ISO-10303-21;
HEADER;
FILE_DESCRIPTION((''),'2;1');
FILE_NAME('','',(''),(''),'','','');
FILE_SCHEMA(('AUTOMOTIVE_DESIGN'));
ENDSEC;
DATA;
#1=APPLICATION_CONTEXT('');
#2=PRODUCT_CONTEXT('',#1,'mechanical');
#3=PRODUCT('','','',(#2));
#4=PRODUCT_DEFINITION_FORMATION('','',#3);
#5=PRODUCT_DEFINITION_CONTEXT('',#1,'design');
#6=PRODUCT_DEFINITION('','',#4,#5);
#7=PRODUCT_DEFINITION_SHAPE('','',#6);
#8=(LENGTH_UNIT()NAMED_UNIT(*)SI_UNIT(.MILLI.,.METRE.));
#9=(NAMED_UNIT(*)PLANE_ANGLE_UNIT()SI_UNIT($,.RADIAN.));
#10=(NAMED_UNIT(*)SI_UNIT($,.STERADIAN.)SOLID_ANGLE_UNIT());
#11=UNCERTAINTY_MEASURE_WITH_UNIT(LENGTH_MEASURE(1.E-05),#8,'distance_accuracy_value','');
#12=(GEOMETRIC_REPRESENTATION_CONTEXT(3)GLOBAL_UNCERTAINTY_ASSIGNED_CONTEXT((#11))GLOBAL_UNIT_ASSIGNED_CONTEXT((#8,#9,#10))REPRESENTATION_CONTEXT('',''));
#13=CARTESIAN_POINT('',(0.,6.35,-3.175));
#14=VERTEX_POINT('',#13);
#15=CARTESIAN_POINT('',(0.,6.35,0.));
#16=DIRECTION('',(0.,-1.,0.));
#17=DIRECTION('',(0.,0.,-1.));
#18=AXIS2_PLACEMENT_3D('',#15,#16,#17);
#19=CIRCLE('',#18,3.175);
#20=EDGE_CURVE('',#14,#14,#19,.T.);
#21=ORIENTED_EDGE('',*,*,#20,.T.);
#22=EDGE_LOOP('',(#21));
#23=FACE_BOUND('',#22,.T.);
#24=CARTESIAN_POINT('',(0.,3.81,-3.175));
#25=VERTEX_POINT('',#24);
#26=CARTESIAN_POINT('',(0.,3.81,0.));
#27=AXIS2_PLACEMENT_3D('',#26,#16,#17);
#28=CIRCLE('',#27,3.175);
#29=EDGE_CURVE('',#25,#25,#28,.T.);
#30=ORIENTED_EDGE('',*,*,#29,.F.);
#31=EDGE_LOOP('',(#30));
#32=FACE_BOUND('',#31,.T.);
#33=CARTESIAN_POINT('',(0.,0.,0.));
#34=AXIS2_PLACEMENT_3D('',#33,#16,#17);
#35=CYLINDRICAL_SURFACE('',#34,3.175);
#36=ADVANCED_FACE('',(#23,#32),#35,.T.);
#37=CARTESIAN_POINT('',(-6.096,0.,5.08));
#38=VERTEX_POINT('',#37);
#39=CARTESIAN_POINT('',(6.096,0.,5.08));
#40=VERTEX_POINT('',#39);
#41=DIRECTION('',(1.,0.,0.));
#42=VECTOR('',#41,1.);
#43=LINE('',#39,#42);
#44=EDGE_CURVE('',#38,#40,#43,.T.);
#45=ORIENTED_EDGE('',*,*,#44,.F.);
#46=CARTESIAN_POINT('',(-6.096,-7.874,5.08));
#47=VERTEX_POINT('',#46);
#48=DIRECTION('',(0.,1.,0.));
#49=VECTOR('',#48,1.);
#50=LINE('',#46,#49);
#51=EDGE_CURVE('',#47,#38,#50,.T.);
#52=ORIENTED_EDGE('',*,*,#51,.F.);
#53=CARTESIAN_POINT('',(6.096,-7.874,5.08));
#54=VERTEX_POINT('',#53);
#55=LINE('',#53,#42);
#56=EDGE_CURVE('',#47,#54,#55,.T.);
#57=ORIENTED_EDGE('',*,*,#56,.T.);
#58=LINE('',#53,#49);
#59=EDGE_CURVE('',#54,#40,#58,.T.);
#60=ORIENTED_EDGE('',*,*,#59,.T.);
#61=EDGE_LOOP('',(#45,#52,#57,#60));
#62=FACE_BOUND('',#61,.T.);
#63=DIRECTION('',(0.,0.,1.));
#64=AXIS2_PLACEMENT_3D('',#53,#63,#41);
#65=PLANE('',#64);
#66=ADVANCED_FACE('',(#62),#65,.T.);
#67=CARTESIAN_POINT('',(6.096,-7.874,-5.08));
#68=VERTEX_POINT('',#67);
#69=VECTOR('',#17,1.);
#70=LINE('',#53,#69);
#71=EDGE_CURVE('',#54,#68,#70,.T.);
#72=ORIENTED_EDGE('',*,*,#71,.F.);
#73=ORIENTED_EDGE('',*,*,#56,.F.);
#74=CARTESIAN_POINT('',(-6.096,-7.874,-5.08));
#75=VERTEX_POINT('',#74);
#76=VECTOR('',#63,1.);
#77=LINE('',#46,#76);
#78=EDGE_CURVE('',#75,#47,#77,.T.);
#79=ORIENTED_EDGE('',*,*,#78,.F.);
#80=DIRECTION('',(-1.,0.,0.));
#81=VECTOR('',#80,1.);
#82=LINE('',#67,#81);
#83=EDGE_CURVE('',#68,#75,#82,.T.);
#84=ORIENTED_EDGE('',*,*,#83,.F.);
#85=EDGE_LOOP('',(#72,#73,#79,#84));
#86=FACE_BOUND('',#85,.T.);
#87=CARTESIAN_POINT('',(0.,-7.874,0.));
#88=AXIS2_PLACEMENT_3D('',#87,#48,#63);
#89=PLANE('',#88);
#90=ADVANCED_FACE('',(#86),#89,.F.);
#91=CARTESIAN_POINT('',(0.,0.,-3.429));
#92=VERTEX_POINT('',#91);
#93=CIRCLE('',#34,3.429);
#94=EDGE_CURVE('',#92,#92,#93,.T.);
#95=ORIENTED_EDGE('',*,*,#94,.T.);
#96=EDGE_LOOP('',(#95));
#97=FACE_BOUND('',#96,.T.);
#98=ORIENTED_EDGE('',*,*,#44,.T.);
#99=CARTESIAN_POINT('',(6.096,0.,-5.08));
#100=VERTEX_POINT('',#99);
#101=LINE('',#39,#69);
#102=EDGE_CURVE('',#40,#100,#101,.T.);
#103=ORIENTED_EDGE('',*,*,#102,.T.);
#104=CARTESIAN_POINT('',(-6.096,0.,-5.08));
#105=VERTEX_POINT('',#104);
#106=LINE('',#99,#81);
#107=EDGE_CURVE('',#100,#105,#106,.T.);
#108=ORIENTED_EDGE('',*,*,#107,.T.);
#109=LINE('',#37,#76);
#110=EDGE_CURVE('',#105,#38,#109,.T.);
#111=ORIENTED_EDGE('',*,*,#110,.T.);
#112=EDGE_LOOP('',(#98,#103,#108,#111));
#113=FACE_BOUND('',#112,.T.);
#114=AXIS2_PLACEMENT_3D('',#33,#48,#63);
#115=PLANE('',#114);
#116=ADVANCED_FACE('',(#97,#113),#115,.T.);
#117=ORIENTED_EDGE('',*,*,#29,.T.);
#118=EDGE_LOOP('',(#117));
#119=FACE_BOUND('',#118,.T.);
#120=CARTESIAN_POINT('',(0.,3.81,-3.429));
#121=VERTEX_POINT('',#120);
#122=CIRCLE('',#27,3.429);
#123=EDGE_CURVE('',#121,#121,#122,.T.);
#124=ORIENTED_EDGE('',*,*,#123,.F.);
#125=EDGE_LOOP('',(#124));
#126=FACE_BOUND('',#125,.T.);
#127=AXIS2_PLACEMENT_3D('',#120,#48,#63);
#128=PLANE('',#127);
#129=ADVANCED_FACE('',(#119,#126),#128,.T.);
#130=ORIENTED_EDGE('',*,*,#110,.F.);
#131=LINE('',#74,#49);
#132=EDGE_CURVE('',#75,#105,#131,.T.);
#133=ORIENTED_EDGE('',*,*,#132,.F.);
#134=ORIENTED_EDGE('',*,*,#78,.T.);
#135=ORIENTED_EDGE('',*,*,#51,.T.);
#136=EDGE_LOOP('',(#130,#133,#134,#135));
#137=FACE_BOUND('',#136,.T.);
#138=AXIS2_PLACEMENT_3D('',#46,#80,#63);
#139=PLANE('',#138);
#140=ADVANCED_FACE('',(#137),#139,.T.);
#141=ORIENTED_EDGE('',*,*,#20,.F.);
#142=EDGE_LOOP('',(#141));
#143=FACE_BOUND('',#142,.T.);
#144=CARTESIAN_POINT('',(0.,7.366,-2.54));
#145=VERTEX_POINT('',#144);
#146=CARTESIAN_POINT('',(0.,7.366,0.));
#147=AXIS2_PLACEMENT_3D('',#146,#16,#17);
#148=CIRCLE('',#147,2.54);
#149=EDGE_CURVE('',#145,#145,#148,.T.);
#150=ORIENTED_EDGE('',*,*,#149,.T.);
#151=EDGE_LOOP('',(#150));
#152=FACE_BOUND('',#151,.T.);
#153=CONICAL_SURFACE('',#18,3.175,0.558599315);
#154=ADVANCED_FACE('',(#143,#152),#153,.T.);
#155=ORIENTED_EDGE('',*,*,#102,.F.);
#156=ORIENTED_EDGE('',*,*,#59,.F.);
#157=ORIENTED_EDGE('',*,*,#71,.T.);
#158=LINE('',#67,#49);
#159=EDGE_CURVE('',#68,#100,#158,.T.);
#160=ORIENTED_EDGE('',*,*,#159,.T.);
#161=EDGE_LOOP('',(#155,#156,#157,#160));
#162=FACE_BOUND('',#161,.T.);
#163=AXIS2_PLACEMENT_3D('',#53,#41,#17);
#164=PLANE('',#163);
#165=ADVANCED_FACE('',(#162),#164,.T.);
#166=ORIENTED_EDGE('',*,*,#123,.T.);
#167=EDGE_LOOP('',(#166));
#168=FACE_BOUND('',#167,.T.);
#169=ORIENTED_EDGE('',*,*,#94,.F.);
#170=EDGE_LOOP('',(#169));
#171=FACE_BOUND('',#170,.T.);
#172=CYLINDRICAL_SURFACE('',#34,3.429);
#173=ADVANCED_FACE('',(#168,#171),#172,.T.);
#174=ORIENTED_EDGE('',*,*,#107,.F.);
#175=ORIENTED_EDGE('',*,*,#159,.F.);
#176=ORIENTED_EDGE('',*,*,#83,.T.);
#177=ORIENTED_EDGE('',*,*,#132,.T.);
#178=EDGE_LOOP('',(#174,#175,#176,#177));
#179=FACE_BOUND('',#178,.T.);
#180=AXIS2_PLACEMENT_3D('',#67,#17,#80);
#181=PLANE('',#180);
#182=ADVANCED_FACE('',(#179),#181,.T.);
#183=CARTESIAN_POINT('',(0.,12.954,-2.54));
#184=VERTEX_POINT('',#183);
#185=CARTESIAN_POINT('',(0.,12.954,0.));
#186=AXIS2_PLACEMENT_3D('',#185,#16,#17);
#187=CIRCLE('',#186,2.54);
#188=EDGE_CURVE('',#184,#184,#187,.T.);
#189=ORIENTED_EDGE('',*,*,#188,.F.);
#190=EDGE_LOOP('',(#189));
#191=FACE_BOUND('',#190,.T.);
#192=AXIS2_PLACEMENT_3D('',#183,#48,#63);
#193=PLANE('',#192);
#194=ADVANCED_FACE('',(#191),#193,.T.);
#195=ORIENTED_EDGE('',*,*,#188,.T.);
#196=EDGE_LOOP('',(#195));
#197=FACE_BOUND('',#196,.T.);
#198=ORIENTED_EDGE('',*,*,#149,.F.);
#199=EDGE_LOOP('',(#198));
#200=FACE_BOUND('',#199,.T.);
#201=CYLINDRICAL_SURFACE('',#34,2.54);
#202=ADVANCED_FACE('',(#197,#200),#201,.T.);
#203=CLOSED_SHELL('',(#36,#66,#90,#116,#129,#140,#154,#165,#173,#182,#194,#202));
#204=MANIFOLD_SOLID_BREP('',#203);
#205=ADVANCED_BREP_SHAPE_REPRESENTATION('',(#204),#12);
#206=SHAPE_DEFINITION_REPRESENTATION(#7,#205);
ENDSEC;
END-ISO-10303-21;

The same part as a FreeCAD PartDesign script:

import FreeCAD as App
import Part
import Sketcher

V = App.Vector
Q = App.Units.Quantity

doc = App.newDocument("Part")
params = doc.addObject("Spreadsheet::Sheet", "Params")
for row, (alias, value) in enumerate([
    ("sketch1_height", "0.4 in"),
    ("sketch1_width", "0.48 in"),
    ("pad1_length", "0.31 in"),
    ("sketch2_width", "0.1 in"),
    ("sketch2_width2", "0.15 in"),
    ("sketch2_width3", "0.22 in"),
    ("sketch2_width4", "0.51 in"),
    ("sketch2_height", "0.01 in"),
    ("revolution_angle", "360 deg"),
], start=1):
    params.set(f"A{row}", alias)
    params.set(f"B{row}", "=" + value)
    params.setAlias(f"B{row}", alias)

body = doc.addObject("PartDesign::Body", "Body")

# Sketch on XZ plane
sketch1 = body.newObject("Sketcher::SketchObject", "Sketch")
sketch1.AttachmentSupport = (doc.getObject("XZ_Plane"), [""])
sketch1.MapMode = "FlatFace"
sketch1.addGeometry(Part.LineSegment(V(-6.096, -5.08, 0), V(-6.096, 5.08, 0)), False)
sketch1.addGeometry(Part.LineSegment(V(-6.096, 5.08, 0), V(6.096, 5.08, 0)), False)
sketch1.addGeometry(Part.LineSegment(V(6.096, 5.08, 0), V(6.096, -5.08, 0)), False)
sketch1.addGeometry(Part.LineSegment(V(6.096, -5.08, 0), V(-6.096, -5.08, 0)), False)
sketch1.addConstraint(Sketcher.Constraint("Coincident", 0, 2, 1, 1))
sketch1.addConstraint(Sketcher.Constraint("Coincident", 1, 2, 2, 1))
sketch1.addConstraint(Sketcher.Constraint("Coincident", 2, 2, 3, 1))
sketch1.addConstraint(Sketcher.Constraint("Coincident", 3, 2, 0, 1))
sketch1.addConstraint(Sketcher.Constraint("Vertical", 0))
sketch1.addConstraint(Sketcher.Constraint("Horizontal", 1))
sketch1.addConstraint(Sketcher.Constraint("Vertical", 2))
sketch1.addConstraint(Sketcher.Constraint("Horizontal", 3))
sketch1.addConstraint(Sketcher.Constraint("Symmetric", 0, 2, 2, 2, -1, 1))
sketch1.addConstraint(Sketcher.Constraint("DistanceY", 0, 1, 0, 2, Q("0.4 in")))
sketch1.addConstraint(Sketcher.Constraint("DistanceX", 1, 1, 1, 2, Q("0.48 in")))
sketch1.setExpression("Constraints[9]", "Params.sketch1_height")
sketch1.setExpression("Constraints[10]", "Params.sketch1_width")
pad1 = body.newObject("PartDesign::Pad", "Pad")
pad1.Profile = sketch1
pad1.setExpression("Length", "Params.pad1_length")

# Sketch on YZ plane
sketch2 = body.newObject("Sketcher::SketchObject", "Sketch001")
sketch2.AttachmentSupport = (doc.getObject("YZ_Plane"), [""])
sketch2.MapMode = "FlatFace"
sketch2.addGeometry(Part.LineSegment(V(0, 0, 0), V(0, -3.429, 0)), False)
sketch2.addGeometry(Part.LineSegment(V(0, -3.429, 0), V(3.81, -3.429, 0)), False)
sketch2.addGeometry(Part.LineSegment(V(3.81, -3.429, 0), V(3.81, -3.175, 0)), False)
sketch2.addGeometry(Part.LineSegment(V(3.81, -3.175, 0), V(6.35, -3.175, 0)), False)
sketch2.addGeometry(Part.LineSegment(V(6.35, -3.175, 0), V(7.366, -2.54, 0)), False)
sketch2.addGeometry(Part.LineSegment(V(7.366, -2.54, 0), V(12.954, -2.54, 0)), False)
sketch2.addGeometry(Part.LineSegment(V(12.954, -2.54, 0), V(12.954, 0, 0)), False)
sketch2.addGeometry(Part.LineSegment(V(12.954, 0, 0), V(0, 0, 0)), False)
sketch2.addConstraint(Sketcher.Constraint("Coincident", 0, 2, 1, 1))
sketch2.addConstraint(Sketcher.Constraint("Coincident", 1, 2, 2, 1))
sketch2.addConstraint(Sketcher.Constraint("Coincident", 2, 2, 3, 1))
sketch2.addConstraint(Sketcher.Constraint("Coincident", 3, 2, 4, 1))
sketch2.addConstraint(Sketcher.Constraint("Coincident", 4, 2, 5, 1))
sketch2.addConstraint(Sketcher.Constraint("Coincident", 5, 2, 6, 1))
sketch2.addConstraint(Sketcher.Constraint("Coincident", 6, 2, 7, 1))
sketch2.addConstraint(Sketcher.Constraint("Coincident", 7, 2, 0, 1))
sketch2.addConstraint(Sketcher.Constraint("Vertical", 0))
sketch2.addConstraint(Sketcher.Constraint("Horizontal", 1))
sketch2.addConstraint(Sketcher.Constraint("Vertical", 2))
sketch2.addConstraint(Sketcher.Constraint("Horizontal", 3))
sketch2.addConstraint(Sketcher.Constraint("Horizontal", 5))
sketch2.addConstraint(Sketcher.Constraint("Vertical", 6))
sketch2.addConstraint(Sketcher.Constraint("Horizontal", 7))
sketch2.addConstraint(Sketcher.Constraint("Coincident", 7, 2, -1, 1))
sketch2.addConstraint(Sketcher.Constraint("Equal", 3, 6))
sketch2.addConstraint(Sketcher.Constraint("DistanceX", 3, 1, 3, 2, Q("0.1 in")))
sketch2.addConstraint(Sketcher.Constraint("DistanceX", 1, 1, 1, 2, Q("0.15 in")))
sketch2.addConstraint(Sketcher.Constraint("DistanceX", 5, 1, 5, 2, Q("0.22 in")))
sketch2.addConstraint(Sketcher.Constraint("DistanceX", 7, 2, 7, 1, Q("0.51 in")))
sketch2.addConstraint(Sketcher.Constraint("DistanceY", 2, 1, 2, 2, Q("0.01 in")))
sketch2.addConstraint(Sketcher.Constraint("DistanceY", 0, 2, 0, 1, Q("0.135 in")))
sketch2.setExpression("Constraints[17]", "Params.sketch2_width")
sketch2.setExpression("Constraints[18]", "Params.sketch2_width2")
sketch2.setExpression("Constraints[19]", "Params.sketch2_width3")
sketch2.setExpression("Constraints[20]", "Params.sketch2_width4")
sketch2.setExpression("Constraints[21]", "Params.sketch2_height")
revolution = body.newObject("PartDesign::Revolution", "Revolution")
revolution.Profile = sketch2
revolution.ReferenceAxis = (sketch2, ["H_Axis"])
revolution.setExpression("Angle", "Params.revolution_angle")

doc.recompute()
